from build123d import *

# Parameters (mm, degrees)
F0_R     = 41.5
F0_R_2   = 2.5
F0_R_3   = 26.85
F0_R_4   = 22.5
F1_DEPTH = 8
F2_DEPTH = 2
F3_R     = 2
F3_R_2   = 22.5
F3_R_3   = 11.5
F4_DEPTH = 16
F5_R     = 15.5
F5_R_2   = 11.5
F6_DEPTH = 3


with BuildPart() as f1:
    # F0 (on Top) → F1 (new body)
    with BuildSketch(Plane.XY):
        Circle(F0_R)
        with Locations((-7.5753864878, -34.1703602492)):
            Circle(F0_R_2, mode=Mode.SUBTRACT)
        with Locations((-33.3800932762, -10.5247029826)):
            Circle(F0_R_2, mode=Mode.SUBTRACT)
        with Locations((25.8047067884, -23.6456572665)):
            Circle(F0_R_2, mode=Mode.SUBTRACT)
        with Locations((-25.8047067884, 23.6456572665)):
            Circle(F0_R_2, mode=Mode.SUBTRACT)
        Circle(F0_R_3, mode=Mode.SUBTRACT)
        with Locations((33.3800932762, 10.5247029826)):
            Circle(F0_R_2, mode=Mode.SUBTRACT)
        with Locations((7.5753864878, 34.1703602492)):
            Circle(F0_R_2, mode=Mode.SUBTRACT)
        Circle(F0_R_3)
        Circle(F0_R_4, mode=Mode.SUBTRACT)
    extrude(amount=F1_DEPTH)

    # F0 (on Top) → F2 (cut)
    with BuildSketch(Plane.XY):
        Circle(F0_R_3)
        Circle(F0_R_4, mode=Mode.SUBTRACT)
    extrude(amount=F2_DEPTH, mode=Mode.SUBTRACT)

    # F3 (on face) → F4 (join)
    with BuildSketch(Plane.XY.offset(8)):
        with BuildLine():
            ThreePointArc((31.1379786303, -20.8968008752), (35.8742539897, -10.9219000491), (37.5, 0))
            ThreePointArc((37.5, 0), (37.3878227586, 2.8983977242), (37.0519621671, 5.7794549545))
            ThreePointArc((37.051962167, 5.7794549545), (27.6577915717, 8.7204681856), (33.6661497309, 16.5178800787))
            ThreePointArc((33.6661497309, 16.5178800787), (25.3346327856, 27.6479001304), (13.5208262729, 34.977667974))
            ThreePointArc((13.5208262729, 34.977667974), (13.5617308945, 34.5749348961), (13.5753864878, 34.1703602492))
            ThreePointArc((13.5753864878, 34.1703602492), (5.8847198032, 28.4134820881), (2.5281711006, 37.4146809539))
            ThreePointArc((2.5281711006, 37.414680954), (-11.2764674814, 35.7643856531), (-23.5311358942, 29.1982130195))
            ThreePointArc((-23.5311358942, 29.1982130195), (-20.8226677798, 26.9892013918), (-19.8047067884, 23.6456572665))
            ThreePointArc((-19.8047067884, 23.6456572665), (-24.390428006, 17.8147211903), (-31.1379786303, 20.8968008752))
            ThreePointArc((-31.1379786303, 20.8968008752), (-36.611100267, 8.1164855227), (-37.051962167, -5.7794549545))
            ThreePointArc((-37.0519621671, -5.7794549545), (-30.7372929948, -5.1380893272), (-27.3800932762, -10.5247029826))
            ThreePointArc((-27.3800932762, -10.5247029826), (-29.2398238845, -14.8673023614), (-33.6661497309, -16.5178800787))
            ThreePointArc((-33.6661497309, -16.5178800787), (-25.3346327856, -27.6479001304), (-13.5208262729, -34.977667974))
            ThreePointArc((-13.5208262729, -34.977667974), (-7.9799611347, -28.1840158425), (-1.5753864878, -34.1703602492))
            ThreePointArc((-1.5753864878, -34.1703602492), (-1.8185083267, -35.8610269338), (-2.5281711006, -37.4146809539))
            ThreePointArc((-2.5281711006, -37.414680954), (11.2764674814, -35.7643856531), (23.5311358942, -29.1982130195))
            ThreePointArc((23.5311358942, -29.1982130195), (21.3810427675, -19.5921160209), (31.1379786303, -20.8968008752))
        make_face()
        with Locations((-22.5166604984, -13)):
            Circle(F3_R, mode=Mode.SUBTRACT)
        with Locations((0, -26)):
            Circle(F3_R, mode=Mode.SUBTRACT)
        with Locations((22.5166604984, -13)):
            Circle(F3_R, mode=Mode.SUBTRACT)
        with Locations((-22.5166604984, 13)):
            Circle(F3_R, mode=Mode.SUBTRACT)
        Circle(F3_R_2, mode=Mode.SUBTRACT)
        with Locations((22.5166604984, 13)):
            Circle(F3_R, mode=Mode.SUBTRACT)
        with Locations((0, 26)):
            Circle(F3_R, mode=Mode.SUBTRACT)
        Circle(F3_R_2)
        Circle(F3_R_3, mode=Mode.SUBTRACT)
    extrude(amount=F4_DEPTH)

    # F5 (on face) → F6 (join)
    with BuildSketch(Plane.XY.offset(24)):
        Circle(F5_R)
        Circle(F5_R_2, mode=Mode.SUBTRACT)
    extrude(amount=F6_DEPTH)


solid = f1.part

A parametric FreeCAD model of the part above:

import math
import FreeCAD as App
import Part
import Sketcher

doc = App.newDocument("Part")
body = doc.addObject("PartDesign::Body", "Body")

# Sketch on XY plane
sketch1 = body.newObject("Sketcher::SketchObject", "Sketch")
sketch1.AttachmentSupport = (doc.getObject("XY_Plane"), [""])
sketch1.MapMode = "FlatFace"
sketch1.addGeometry(Part.Circle(App.Vector(0, 0, 0), App.Vector(0, 0, 1), 41.5), False)
sketch1.addGeometry(Part.Circle(App.Vector(-7.575386, -34.17036, 0), App.Vector(0, 0, 1), 2.5), False)
sketch1.addGeometry(Part.Circle(App.Vector(-33.380093, -10.524703, 0), App.Vector(0, 0, 1), 2.5), False)
sketch1.addGeometry(Part.Circle(App.Vector(25.804707, -23.645657, 0), App.Vector(0, 0, 1), 2.5), False)
sketch1.addGeometry(Part.Circle(App.Vector(-25.804707, 23.645657, 0), App.Vector(0, 0, 1), 2.5), False)
sketch1.addGeometry(Part.Circle(App.Vector(0, 0, 0), App.Vector(0, 0, 1), 22.5), False)
sketch1.addGeometry(Part.Circle(App.Vector(33.380093, 10.524703, 0), App.Vector(0, 0, 1), 2.5), False)
sketch1.addGeometry(Part.Circle(App.Vector(7.575386, 34.17036, 0), App.Vector(0, 0, 1), 2.5), False)
sketch1.addConstraint(Sketcher.Constraint("Coincident", 0, 3, -1, 1))
sketch1.addConstraint(Sketcher.Constraint("Coincident", 5, 3, -1, 1))
sketch1.addConstraint(Sketcher.Constraint("Equal", 1, 2))
sketch1.addConstraint(Sketcher.Constraint("Equal", 2, 3))
sketch1.addConstraint(Sketcher.Constraint("Equal", 3, 4))
sketch1.addConstraint(Sketcher.Constraint("Equal", 4, 6))
sketch1.addConstraint(Sketcher.Constraint("Equal", 6, 7))
sketch1.addConstraint(Sketcher.Constraint("Symmetric", 3, 3, 4, 3, -1, 1))
sketch1.addConstraint(Sketcher.Constraint("Symmetric", 2, 3, 6, 3, -1, 1))
sketch1.addConstraint(Sketcher.Constraint("Symmetric", 1, 3, 7, 3, -1, 1))
sketch1.addConstraint(Sketcher.Constraint("Diameter", 0, 83.0))
sketch1.addConstraint(Sketcher.Constraint("Diameter", 1, 5.0))
sketch1.addConstraint(Sketcher.Constraint("Diameter", 5, 45.0))
sketch1.addConstraint(Sketcher.Constraint("DistanceX", 2, 3, 3, 3, 59.1848))
sketch1.addConstraint(Sketcher.Constraint("DistanceY", 1, 3, -1, 1, 34.17036))
sketch1.addConstraint(Sketcher.Constraint("DistanceY", 2, 3, 4, 3, 34.17036))
sketch1.addConstraint(Sketcher.Constraint("DistanceX", 4, 3, 1, 3, 18.22932))
sketch1.addConstraint(Sketcher.Constraint("DistanceX", 1, 3, -1, 1, 7.575386))
sketch1.addConstraint(Sketcher.Constraint("DistanceY", 2, 3, -1, 1, 10.524703))
pad1 = body.newObject("PartDesign::Pad", "Pad")
pad1.Profile = sketch1
pad1.Length = 8

# Sketch on XY plane
sketch2 = body.newObject("Sketcher::SketchObject", "Sketch001")
sketch2.AttachmentSupport = (doc.getObject("XY_Plane"), [""])
sketch2.MapMode = "FlatFace"
sketch2.addGeometry(Part.Circle(App.Vector(0, 0, 0), App.Vector(0, 0, 1), 26.85), False)
sketch2.addGeometry(Part.Circle(App.Vector(0, 0, 0), App.Vector(0, 0, 1), 22.5), False)
sketch2.addConstraint(Sketcher.Constraint("Coincident", 0, 3, -1, 1))
sketch2.addConstraint(Sketcher.Constraint("Coincident", 1, 3, -1, 1))
sketch2.addConstraint(Sketcher.Constraint("Diameter", 1, 45.0))
sketch2.addConstraint(Sketcher.Constraint("Diameter", 0, 53.7))
pocket1 = body.newObject("PartDesign::Pocket", "Pocket")
pocket1.Profile = sketch2
pocket1.Length = 2
pocket1.Reversed = True

# Sketch on XY plane
sketch3 = body.newObject("Sketcher::SketchObject", "Sketch002")
sketch3.AttachmentSupport = (doc.getObject("XY_Plane"), [""])
sketch3.MapMode = "FlatFace"
sketch3.AttachmentOffset = App.Placement(App.Vector(0, 0, 8), App.Rotation())
sketch3.addGeometry(Part.ArcOfCircle(Part.Circle(App.Vector(0, 0, 0), App.Vector(0, 0, 1), 37.5), math.radians(-33.865693), math.radians(0)), False)
sketch3.addGeometry(Part.ArcOfCircle(Part.Circle(App.Vector(0, 0, 0), App.Vector(0, 0, 1), 37.5), math.radians(0), math.radians(8.865693)), False)
sketch3.addGeometry(Part.ArcOfCircle(Part.Circle(App.Vector(33.380093, 10.524703, 0), App.Vector(0, 0, 1), 6), math.radians(87.267326), math.radians(307.732674)), False)
sketch3.addGeometry(Part.ArcOfCircle(Part.Circle(App.Vector(0, 0, 0), App.Vector(0, 0, 1), 37.5), math.radians(26.134307), math.radians(68.865693)), False)
sketch3.addGeometry(Part.ArcOfCircle(Part.Circle(App.Vector(7.575386, 34.17036, 0), App.Vector(0, 0, 1), 6), math.radians(0), math.radians(7.732674)), False)
sketch3.addGeometry(Part.ArcOfCircle(Part.Circle(App.Vector(7.575386, 34.17036, 0), App.Vector(0, 0, 1), 6), math.radians(147.267326), math.radians(360)), False)
sketch3.addGeometry(Part.ArcOfCircle(Part.Circle(App.Vector(0, 0, 0), App.Vector(0, 0, 1), 37.5), math.radians(86.134307), math.radians(128.865693)), False)
sketch3.addGeometry(Part.ArcOfCircle(Part.Circle(App.Vector(-25.804707, 23.645657, 0), App.Vector(0, 0, 1), 6), math.radians(0), math.radians(67.732674)), False)
sketch3.addGeometry(Part.ArcOfCircle(Part.Circle(App.Vector(-25.804707, 23.645657, 0), App.Vector(0, 0, 1), 6), math.radians(-152.732674), math.radians(0)), False)
sketch3.addGeometry(Part.ArcOfCircle(Part.Circle(App.Vector(0, 0, 0), App.Vector(0, 0, 1), 37.5), math.radians(146.134307), math.radians(188.865693)), False)
sketch3.addGeometry(Part.ArcOfCircle(Part.Circle(App.Vector(-33.380093, -10.524703, 0), App.Vector(0, 0, 1), 6), math.radians(0), math.radians(127.732674)), False)
sketch3.addGeometry(Part.ArcOfCircle(Part.Circle(App.Vector(-33.380093, -10.524703, 0), App.Vector(0, 0, 1), 6), math.radians(-92.732674), math.radians(0)), False)
sketch3.addGeometry(Part.ArcOfCircle(Part.Circle(App.Vector(0, 0, 0), App.Vector(0, 0, 1), 37.5), math.radians(-153.865693), math.radians(-111.134307)), False)
sketch3.addGeometry(Part.ArcOfCircle(Part.Circle(App.Vector(-7.575386, -34.17036, 0), App.Vector(0, 0, 1), 6), math.radians(0), math.radians(187.732674)), False)
sketch3.addGeometry(Part.ArcOfCircle(Part.Circle(App.Vector(-7.575386, -34.17036, 0), App.Vector(0, 0, 1), 6), math.radians(-32.732674), math.radians(0)), False)
sketch3.addGeometry(Part.ArcOfCircle(Part.Circle(App.Vector(0, 0, 0), App.Vector(0, 0, 1), 37.5), math.radians(-93.865693), math.radians(-51.134307)), False)
sketch3.addGeometry(Part.ArcOfCircle(Part.Circle(App.Vector(25.804707, -23.645657, 0), App.Vector(0, 0, 1), 6), math.radians(27.267326), math.radians(247.732674)), False)
sketch3.addGeometry(Part.Circle(App.Vector(-22.51666, -13, 0), App.Vector(0, 0, 1), 2), False)
sketch3.addGeometry(Part.Circle(App.Vector(0, -26, 0), App.Vector(0, 0, 1), 2), False)
sketch3.addGeometry(Part.Circle(App.Vector(22.51666, -13, 0), App.Vector(0, 0, 1), 2), False)
sketch3.addGeometry(Part.Circle(App.Vector(-22.51666, 13, 0), App.Vector(0, 0, 1), 2), False)
sketch3.addGeometry(Part.Circle(App.Vector(0, 0, 0), App.Vector(0, 0, 1), 11.5), False)
sketch3.addGeometry(Part.Circle(App.Vector(22.51666, 13, 0), App.Vector(0, 0, 1), 2), False)
sketch3.addGeometry(Part.Circle(App.Vector(0, 26, 0), App.Vector(0, 0, 1), 2), False)
sketch3.addConstraint(Sketcher.Constraint("Tangent", 0, 2, 1, 1))
sketch3.addConstraint(Sketcher.Constraint("Coincident", 1, 2, 2, 2))
sketch3.addConstraint(Sketcher.Constraint("Coincident", 2, 1, 3, 1))
sketch3.addConstraint(Sketcher.Constraint("Coincident", 3, 2, 4, 2))
sketch3.addConstraint(Sketcher.Constraint("Tangent", 4, 1, 5, 2))
sketch3.addConstraint(Sketcher.Constraint("Coincident", 5, 1, 6, 1))
sketch3.addConstraint(Sketcher.Constraint("Coincident", 6, 2, 7, 2))
sketch3.addConstraint(Sketcher.Constraint("Tangent", 7, 1, 8, 2))
sketch3.addConstraint(Sketcher.Constraint("Coincident", 8, 1, 9, 1))
sketch3.addConstraint(Sketcher.Constraint("Coincident", 9, 2, 10, 2))
sketch3.addConstraint(Sketcher.Constraint("Tangent", 10, 1, 11, 2))
sketch3.addConstraint(Sketcher.Constraint("Coincident", 11, 1, 12, 1))
sketch3.addConstraint(Sketcher.Constraint("Coincident", 12, 2, 13, 2))
sketch3.addConstraint(Sketcher.Constraint("Tangent", 13, 1, 14, 2))
sketch3.addConstraint(Sketcher.Constraint("Coincident", 14, 1, 15, 1))
sketch3.addConstraint(Sketcher.Constraint("Coincident", 15, 2, 16, 2))
sketch3.addConstraint(Sketcher.Constraint("Coincident", 16, 1, 0, 1))
sketch3.addConstraint(Sketcher.Constraint("Coincident", 0, 3, -1, 1))
sketch3.addConstraint(Sketcher.Constraint("Coincident", 3, 3, -1, 1))
sketch3.addConstraint(Sketcher.Constraint("Coincident", 6, 3, -1, 1))
sketch3.addConstraint(Sketcher.Constraint("Coincident", 9, 3, -1, 1))
sketch3.addConstraint(Sketcher.Constraint("Coincident", 12, 3, -1, 1))
sketch3.addConstraint(Sketcher.Constraint("Coincident", 15, 3, -1, 1))
sketch3.addConstraint(Sketcher.Constraint("Coincident", 21, 3, -1, 1))
sketch3.addConstraint(Sketcher.Constraint("Equal", 0, 1))
sketch3.addConstraint(Sketcher.Constraint("Equal", 1, 3))
sketch3.addConstraint(Sketcher.Constraint("Equal", 2, 4))
sketch3.addConstraint(Sketcher.Constraint("Equal", 4, 5))
sketch3.addConstraint(Sketcher.Constraint("Equal", 3, 6))
sketch3.addConstraint(Sketcher.Constraint("Equal", 5, 7))
sketch3.addConstraint(Sketcher.Constraint("Equal", 7, 8))
sketch3.addConstraint(Sketcher.Constraint("Equal", 6, 9))
sketch3.addConstraint(Sketcher.Constraint("Equal", 8, 10))
sketch3.addConstraint(Sketcher.Constraint("Equal", 10, 11))
sketch3.addConstraint(Sketcher.Constraint("Equal", 9, 12))
sketch3.addConstraint(Sketcher.Constraint("Equal", 11, 13))
sketch3.addConstraint(Sketcher.Constraint("Equal", 13, 14))
sketch3.addConstraint(Sketcher.Constraint("Equal", 12, 15))
sketch3.addConstraint(Sketcher.Constraint("Equal", 14, 16))
sketch3.addConstraint(Sketcher.Constraint("Equal", 17, 18))
sketch3.addConstraint(Sketcher.Constraint("Equal", 18, 19))
sketch3.addConstraint(Sketcher.Constraint("Equal", 19, 20))
sketch3.addConstraint(Sketcher.Constraint("Equal", 20, 22))
sketch3.addConstraint(Sketcher.Constraint("Equal", 22, 23))
sketch3.addConstraint(Sketcher.Constraint("Symmetric", 2, 3, 10, 3, -1, 1))
sketch3.addConstraint(Sketcher.Constraint("Symmetric", 4, 3, 13, 3, -1, 1))
sketch3.addConstraint(Sketcher.Constraint("Symmetric", 7, 3, 16, 3, -1, 1))
sketch3.addConstraint(Sketcher.Constraint("Symmetric", 19, 3, 20, 3, -1, 1))
sketch3.addConstraint(Sketcher.Constraint("Symmetric", 17, 3, 22, 3, -1, 1))
sketch3.addConstraint(Sketcher.Constraint("Symmetric", 18, 3, 23, 3, -1, 1))
sketch3.addConstraint(Sketcher.Constraint("Symmetric", 17, 3, 19, 3, -2))
sketch3.addConstraint(Sketcher.Constraint("PointOnObject", 18, 3, -2))
sketch3.addConstraint(Sketcher.Constraint("PointOnObject", 0, 2, -1))
sketch3.addConstraint(Sketcher.Constraint("Horizontal", 5, 3, 4, 1))
sketch3.addConstraint(Sketcher.Constraint("Horizontal", 8, 3, 7, 1))
sketch3.addConstraint(Sketcher.Constraint("Horizontal", 11, 3, 10, 1))
sketch3.addConstraint(Sketcher.Constraint("Horizontal", 14, 3, 13, 1))
sketch3.addConstraint(Sketcher.Constraint("Diameter", 17, 4.0))
sketch3.addConstraint(Sketcher.Constraint("Diameter", 21, 23.0))
sketch3.addConstraint(Sketcher.Constraint("Radius", 2, 6.0))
sketch3.addConstraint(Sketcher.Constraint("Radius", 0, 37.5))
sketch3.addConstraint(Sketcher.Constraint("DistanceY", 17, 3, -1, 1, 13.0))
sketch3.addConstraint(Sketcher.Constraint("DistanceY", 18, 3, -1, 1, 26.0))
sketch3.addConstraint(Sketcher.Constraint("DistanceY", -1, 1, 8, 1, 20.896801))
sketch3.addConstraint(Sketcher.Constraint("DistanceX", 22, 3, 1, 2, 14.535302))
sketch3.addConstraint(Sketcher.Constraint("DistanceY", -1, 1, 4, 3, 34.17036))
sketch3.addConstraint(Sketcher.Constraint("DistanceX", 17, 3, -1, 1, 22.51666))
sketch3.addConstraint(Sketcher.Constraint("DistanceX", -1, 1, 2, 1, 33.66615))
sketch3.addConstraint(Sketcher.Constraint("DistanceX", -1, 1, 5, 1, 2.528171))
sketch3.addConstraint(Sketcher.Constraint("DistanceX", 7, 3, 6, 2, 2.273571))
pad2 = body.newObject("PartDesign::Pad", "Pad001")
pad2.Profile = sketch3
pad2.Length = 16

# Sketch on XY plane
sketch4 = body.newObject("Sketcher::SketchObject", "Sketch003")
sketch4.AttachmentSupport = (doc.getObject("XY_Plane"), [""])
sketch4.MapMode = "FlatFace"
sketch4.AttachmentOffset = App.Placement(App.Vector(0, 0, 24), App.Rotation())
sketch4.addGeometry(Part.Circle(App.Vector(0, 0, 0), App.Vector(0, 0, 1), 15.5), False)
sketch4.addGeometry(Part.Circle(App.Vector(0, 0, 0), App.Vector(0, 0, 1), 11.5), False)
sketch4.addConstraint(Sketcher.Constraint("Coincident", 0, 3, -1, 1))
sketch4.addConstraint(Sketcher.Constraint("Coincident", 1, 3, -1, 1))
sketch4.addConstraint(Sketcher.Constraint("Diameter", 0, 31.0))
sketch4.addConstraint(Sketcher.Constraint("Diameter", 1, 23.0))
pad3 = body.newObject("PartDesign::Pad", "Pad002")
pad3.Profile = sketch4
pad3.Length = 3

doc.recompute()
